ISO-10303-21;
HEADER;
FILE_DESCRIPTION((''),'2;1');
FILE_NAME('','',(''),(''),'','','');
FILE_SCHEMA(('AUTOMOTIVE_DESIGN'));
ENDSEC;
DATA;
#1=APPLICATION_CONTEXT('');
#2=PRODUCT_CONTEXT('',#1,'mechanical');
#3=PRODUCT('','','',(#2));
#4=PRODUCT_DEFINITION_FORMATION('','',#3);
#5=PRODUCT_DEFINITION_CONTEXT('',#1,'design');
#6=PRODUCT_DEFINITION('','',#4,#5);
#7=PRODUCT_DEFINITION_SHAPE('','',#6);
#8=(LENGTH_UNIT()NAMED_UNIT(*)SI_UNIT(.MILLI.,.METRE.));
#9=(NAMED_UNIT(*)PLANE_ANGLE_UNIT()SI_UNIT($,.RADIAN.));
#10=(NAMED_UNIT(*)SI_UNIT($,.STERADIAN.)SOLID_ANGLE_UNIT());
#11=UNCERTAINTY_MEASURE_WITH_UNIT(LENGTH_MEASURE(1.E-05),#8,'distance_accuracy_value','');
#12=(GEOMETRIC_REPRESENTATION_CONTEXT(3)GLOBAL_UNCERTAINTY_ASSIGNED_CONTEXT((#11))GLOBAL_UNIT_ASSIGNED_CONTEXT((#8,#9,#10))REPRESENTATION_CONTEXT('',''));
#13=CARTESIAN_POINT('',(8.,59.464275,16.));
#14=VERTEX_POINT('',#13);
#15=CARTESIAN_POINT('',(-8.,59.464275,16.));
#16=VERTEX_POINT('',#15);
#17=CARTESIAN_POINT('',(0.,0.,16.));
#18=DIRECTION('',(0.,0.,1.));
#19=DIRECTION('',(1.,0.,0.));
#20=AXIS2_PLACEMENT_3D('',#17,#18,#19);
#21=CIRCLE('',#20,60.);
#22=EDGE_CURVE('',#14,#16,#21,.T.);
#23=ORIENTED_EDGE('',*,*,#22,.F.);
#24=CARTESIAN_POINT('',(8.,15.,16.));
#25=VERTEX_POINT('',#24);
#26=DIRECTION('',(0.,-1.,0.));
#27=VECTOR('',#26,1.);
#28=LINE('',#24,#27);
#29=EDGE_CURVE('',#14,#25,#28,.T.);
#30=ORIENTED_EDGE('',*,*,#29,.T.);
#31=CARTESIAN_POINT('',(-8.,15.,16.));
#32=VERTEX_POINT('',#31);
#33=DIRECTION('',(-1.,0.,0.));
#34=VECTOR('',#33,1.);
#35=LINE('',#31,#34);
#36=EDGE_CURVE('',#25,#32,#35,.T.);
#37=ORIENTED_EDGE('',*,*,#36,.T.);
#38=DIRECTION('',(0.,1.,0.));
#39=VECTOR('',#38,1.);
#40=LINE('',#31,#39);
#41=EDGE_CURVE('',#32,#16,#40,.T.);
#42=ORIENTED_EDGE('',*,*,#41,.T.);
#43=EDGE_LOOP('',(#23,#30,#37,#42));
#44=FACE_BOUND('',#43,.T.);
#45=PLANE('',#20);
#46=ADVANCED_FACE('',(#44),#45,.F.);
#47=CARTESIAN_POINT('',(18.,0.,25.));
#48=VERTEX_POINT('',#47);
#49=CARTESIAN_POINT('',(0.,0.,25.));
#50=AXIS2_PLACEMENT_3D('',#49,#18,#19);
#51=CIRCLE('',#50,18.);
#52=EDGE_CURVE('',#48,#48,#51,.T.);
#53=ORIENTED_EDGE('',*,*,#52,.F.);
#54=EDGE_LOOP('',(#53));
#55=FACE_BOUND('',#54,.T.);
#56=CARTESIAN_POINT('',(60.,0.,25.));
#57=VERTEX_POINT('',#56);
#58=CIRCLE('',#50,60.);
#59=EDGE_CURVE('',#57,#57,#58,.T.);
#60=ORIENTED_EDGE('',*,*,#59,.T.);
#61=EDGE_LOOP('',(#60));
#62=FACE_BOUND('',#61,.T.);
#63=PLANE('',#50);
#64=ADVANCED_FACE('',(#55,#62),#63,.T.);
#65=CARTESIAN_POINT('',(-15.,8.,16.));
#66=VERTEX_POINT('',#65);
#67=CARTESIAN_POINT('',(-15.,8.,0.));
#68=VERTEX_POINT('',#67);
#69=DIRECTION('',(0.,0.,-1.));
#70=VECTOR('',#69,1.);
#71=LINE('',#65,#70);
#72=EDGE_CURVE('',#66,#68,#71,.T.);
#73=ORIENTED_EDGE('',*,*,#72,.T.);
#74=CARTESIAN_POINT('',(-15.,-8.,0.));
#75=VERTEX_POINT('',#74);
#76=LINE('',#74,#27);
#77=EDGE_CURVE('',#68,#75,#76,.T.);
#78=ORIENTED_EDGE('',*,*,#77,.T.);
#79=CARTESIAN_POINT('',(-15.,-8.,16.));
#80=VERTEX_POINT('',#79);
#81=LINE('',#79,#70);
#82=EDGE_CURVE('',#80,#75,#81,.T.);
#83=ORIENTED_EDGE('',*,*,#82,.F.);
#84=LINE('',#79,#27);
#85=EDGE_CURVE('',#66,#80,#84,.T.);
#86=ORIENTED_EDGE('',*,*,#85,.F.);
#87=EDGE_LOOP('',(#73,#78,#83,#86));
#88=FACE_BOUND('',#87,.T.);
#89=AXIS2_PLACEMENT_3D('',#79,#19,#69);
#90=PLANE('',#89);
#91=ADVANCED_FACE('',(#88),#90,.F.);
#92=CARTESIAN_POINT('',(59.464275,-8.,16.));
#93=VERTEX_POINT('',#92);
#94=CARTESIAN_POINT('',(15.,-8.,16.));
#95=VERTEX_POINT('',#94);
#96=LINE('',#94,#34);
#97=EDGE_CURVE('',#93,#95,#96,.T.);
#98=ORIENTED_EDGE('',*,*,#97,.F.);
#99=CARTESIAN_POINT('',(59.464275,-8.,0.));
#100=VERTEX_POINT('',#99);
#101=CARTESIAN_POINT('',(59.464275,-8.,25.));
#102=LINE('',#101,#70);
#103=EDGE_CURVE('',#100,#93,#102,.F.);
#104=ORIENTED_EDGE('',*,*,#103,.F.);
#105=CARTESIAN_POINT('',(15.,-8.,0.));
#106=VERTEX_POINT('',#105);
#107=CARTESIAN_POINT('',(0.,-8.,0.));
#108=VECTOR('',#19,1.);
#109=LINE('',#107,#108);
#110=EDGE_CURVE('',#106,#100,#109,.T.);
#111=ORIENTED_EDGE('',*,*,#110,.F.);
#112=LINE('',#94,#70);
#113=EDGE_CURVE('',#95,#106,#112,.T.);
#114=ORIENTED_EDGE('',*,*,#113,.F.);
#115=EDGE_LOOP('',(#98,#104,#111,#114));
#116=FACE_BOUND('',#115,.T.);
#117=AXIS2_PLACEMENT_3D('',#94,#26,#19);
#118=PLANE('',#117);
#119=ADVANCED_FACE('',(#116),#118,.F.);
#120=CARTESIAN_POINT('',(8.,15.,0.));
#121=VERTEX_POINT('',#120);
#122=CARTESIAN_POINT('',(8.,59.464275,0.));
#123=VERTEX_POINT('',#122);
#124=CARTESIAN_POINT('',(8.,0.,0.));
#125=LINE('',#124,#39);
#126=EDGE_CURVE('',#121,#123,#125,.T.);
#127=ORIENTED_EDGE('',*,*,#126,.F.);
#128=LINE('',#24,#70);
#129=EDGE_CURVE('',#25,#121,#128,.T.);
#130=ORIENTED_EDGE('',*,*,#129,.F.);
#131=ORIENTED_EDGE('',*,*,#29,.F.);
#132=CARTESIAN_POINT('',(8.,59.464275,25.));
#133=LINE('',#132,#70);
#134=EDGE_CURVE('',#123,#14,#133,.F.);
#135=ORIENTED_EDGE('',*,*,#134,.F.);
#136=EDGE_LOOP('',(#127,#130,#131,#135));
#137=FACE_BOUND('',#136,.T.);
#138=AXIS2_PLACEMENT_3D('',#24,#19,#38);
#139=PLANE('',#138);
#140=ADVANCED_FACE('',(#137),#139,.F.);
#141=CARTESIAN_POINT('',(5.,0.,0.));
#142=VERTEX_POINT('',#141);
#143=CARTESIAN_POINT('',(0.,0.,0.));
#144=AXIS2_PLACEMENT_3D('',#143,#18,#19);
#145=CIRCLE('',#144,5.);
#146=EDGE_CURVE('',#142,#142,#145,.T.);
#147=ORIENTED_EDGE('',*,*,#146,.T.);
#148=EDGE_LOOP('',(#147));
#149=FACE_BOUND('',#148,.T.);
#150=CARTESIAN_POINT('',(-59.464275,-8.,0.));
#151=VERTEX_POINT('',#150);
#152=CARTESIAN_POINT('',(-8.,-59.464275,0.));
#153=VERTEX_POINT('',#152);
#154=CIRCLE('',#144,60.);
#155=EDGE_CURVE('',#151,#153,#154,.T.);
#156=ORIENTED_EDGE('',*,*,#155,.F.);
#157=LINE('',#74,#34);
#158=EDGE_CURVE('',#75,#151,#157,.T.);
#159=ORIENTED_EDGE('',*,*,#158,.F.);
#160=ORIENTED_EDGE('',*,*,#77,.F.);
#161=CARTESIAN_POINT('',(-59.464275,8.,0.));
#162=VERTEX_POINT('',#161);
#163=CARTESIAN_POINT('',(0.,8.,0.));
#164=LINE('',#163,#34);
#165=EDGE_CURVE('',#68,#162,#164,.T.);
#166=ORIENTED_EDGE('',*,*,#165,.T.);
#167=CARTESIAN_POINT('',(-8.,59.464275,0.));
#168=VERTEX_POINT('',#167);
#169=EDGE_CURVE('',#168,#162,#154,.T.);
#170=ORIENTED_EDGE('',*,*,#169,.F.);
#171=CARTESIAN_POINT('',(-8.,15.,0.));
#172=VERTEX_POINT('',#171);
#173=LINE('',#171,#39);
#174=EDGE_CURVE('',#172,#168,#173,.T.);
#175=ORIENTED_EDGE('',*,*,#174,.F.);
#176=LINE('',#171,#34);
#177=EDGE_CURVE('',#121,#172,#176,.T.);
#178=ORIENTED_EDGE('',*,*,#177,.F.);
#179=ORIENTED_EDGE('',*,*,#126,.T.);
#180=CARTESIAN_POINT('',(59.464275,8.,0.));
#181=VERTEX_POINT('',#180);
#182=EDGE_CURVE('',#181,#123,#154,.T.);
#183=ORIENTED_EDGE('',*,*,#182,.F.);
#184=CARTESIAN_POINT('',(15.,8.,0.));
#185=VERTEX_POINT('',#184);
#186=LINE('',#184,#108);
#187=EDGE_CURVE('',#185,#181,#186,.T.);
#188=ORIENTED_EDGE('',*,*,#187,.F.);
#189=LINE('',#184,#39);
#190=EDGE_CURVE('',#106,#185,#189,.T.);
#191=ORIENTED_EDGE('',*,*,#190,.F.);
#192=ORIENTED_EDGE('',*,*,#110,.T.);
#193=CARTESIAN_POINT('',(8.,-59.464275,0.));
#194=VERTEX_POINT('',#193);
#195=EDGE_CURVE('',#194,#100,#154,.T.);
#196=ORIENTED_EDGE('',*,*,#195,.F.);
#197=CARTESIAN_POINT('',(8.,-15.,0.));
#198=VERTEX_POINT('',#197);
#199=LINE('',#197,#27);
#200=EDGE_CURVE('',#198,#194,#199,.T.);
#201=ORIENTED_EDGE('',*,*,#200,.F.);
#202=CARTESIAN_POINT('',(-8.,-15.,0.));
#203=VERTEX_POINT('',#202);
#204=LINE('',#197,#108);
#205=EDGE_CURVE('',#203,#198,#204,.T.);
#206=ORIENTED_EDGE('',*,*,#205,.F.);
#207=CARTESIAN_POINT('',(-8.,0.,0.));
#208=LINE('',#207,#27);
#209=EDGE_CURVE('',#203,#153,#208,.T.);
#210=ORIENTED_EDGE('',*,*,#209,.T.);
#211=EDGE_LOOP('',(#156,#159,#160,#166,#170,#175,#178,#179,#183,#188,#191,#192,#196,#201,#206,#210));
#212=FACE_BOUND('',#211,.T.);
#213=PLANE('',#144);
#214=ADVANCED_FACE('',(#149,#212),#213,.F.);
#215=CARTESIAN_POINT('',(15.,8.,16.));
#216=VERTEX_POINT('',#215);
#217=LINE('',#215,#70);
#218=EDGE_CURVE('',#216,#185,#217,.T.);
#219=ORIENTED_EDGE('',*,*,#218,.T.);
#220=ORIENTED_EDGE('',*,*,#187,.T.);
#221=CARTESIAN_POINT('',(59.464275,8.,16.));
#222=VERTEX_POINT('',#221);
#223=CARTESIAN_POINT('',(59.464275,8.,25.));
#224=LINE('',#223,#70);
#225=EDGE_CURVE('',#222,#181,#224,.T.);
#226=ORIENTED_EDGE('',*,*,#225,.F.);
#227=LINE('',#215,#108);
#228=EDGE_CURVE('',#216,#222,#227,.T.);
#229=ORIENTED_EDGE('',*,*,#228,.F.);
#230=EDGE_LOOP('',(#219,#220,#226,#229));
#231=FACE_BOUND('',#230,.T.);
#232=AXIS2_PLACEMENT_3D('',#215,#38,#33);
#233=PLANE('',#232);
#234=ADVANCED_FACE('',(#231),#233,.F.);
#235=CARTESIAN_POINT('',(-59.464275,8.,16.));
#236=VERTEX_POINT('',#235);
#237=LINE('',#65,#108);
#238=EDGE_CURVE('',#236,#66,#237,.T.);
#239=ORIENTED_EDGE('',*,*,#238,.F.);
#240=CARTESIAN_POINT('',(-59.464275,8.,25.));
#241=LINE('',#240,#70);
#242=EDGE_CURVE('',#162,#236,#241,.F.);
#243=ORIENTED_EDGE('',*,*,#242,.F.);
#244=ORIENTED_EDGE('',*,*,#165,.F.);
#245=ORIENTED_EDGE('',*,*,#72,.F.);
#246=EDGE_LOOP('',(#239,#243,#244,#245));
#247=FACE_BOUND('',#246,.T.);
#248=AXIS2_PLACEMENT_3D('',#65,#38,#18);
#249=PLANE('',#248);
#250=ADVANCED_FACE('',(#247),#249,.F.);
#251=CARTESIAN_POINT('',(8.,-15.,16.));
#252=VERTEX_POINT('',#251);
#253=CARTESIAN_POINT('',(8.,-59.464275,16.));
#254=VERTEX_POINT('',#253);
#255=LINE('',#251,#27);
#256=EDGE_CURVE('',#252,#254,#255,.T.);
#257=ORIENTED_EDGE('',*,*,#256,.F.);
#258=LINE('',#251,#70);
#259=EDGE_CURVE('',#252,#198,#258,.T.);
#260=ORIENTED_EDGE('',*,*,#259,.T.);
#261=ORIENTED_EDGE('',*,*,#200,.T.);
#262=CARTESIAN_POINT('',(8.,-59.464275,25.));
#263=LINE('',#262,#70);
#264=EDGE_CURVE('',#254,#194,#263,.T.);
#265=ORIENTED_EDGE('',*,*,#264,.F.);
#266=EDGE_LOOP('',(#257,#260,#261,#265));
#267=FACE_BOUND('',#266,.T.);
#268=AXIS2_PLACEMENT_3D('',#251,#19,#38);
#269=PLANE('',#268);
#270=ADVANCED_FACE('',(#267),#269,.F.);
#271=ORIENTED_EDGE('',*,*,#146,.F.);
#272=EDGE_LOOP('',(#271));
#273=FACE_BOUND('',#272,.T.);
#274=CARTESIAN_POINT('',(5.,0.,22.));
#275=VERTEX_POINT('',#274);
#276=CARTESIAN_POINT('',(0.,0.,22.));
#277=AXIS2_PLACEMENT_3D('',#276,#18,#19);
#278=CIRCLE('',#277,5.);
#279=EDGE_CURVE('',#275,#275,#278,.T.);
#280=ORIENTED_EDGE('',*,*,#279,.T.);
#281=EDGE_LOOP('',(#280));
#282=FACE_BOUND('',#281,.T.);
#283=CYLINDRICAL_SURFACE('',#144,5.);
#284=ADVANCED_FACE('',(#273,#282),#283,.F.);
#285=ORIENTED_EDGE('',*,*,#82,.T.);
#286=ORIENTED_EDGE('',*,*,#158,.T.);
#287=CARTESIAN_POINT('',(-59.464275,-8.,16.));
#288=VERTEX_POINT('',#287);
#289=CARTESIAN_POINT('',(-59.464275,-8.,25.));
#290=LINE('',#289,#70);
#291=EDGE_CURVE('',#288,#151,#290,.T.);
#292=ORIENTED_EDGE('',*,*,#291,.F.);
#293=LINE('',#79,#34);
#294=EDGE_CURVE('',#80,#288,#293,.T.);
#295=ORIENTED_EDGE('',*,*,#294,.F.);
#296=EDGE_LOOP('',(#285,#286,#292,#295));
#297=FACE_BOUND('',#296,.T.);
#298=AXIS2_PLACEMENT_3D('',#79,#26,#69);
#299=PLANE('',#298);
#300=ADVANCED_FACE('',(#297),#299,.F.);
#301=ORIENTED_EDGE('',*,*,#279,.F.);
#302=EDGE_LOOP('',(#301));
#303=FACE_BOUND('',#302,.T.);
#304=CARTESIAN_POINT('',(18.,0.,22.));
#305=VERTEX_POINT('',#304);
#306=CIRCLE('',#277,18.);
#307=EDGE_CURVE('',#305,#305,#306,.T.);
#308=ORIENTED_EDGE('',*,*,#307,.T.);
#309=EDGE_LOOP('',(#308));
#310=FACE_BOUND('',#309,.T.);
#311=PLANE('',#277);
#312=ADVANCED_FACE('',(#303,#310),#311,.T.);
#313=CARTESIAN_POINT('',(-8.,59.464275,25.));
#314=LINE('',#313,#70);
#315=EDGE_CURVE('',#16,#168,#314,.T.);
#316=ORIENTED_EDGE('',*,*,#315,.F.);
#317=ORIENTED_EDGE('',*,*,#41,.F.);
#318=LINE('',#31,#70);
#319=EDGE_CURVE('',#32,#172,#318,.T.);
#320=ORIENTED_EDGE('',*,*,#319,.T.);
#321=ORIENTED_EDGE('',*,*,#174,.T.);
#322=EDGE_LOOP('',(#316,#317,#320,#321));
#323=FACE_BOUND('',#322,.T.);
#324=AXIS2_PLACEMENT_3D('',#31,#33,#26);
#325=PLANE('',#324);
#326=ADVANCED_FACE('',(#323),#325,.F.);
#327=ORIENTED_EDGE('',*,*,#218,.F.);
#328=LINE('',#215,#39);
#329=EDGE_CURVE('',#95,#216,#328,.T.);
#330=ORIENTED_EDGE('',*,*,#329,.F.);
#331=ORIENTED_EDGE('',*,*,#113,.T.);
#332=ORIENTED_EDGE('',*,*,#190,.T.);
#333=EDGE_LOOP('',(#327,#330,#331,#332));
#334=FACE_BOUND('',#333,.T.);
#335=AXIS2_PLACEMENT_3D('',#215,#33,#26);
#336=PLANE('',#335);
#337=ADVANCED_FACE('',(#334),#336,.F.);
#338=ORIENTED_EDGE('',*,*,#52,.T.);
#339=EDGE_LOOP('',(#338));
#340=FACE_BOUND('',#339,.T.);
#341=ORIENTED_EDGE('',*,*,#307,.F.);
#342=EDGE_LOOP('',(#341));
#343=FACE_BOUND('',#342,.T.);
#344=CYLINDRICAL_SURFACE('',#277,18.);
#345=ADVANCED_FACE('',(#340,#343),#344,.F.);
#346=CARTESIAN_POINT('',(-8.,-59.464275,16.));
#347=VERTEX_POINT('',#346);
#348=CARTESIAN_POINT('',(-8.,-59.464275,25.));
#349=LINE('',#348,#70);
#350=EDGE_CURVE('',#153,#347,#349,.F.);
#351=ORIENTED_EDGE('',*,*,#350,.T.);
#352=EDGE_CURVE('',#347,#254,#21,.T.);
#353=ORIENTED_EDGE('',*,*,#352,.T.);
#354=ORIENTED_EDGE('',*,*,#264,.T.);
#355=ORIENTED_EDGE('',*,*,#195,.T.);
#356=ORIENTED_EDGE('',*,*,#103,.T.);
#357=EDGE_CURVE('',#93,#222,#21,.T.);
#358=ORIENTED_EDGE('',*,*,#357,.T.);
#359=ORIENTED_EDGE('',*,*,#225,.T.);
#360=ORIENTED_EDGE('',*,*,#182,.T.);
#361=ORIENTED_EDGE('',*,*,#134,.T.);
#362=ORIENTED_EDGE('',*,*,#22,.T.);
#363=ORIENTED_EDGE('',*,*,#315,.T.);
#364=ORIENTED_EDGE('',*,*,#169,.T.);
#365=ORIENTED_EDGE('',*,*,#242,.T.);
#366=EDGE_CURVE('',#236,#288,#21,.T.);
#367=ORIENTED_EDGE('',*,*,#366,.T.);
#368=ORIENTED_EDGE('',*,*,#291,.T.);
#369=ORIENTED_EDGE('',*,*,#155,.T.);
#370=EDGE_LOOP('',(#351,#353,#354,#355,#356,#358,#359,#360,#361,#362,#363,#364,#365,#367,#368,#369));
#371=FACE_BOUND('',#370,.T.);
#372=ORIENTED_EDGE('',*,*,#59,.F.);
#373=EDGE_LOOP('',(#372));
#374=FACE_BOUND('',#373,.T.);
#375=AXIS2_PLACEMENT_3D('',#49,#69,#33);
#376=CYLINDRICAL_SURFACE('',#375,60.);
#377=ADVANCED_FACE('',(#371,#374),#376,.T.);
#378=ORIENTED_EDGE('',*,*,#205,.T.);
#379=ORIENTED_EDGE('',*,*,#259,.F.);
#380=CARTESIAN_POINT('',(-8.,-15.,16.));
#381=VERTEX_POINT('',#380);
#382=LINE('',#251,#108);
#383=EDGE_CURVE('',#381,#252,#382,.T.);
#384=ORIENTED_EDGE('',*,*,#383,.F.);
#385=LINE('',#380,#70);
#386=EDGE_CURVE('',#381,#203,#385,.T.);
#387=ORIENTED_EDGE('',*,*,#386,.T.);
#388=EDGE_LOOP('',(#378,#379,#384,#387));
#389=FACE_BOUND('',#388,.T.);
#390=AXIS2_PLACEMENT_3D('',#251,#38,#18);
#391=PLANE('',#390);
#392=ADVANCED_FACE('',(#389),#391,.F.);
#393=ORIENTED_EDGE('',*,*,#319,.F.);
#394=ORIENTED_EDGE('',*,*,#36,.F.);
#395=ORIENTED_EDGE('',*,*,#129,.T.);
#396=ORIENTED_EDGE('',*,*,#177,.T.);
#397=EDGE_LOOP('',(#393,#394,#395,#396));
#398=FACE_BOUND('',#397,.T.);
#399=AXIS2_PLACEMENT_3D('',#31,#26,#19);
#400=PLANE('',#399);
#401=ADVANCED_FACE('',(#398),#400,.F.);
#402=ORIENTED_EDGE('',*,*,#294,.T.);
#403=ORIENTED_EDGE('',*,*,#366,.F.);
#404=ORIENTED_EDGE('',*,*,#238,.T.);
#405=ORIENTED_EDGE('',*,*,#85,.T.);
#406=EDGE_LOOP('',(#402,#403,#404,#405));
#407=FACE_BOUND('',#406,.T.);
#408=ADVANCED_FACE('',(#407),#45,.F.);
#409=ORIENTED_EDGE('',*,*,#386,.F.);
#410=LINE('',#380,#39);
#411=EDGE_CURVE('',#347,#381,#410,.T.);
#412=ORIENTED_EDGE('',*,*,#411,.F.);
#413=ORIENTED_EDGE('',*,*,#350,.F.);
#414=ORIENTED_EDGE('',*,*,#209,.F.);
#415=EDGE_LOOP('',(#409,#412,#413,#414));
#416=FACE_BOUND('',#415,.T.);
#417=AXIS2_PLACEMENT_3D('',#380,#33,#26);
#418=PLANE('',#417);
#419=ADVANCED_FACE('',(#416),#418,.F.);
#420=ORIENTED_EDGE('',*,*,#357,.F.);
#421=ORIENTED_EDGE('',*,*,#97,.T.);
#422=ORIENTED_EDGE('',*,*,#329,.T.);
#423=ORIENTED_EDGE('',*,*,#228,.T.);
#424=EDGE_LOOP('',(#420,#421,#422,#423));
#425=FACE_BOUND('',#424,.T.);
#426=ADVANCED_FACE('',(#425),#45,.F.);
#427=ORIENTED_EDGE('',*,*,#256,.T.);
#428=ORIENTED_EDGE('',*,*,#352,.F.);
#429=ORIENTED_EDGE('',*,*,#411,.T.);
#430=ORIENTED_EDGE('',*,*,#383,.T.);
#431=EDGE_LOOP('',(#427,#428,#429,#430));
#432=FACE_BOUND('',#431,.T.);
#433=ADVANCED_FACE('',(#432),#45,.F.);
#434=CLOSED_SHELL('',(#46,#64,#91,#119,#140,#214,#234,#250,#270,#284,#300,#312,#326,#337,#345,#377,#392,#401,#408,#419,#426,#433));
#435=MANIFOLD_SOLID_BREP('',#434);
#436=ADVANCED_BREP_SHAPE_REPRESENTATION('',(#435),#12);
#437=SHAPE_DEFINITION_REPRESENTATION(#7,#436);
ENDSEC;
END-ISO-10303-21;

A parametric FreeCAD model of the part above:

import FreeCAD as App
import Part
import Sketcher
Q = App.Units.Quantity


def add_polygon(sketch, points):
    """Adds a closed chain of lines whose ends are joined by coincident constraints."""
    first, n = sketch.GeometryCount, len(points)
    for a, b in zip(points, points[1:] + points[:1]):
        sketch.addGeometry(Part.LineSegment(App.Vector(*a, 0), App.Vector(*b, 0)), False)
    for i in range(n):
        sketch.addConstraint(Sketcher.Constraint("Coincident", first + i, 2, first + (i + 1) % n, 1))

doc = App.newDocument("Part")
body = doc.addObject("PartDesign::Body", "Body")

# Sketch on XY plane
sketch1 = doc.addObject("Sketcher::SketchObject", "Sketch")
body.addObject(sketch1)
sketch1.AttachmentSupport = (doc.XY_Plane, [""])
sketch1.MapMode = "FlatFace"
sketch1.addGeometry(Part.Circle(App.Vector(0, 0, 0), App.Vector(0, 0, 1), 60), False)
sketch1.addConstraint([
    Sketcher.Constraint("Coincident", 0, 3, -1, 1),
    Sketcher.Constraint("Diameter", 0, Q("120 mm")),
])
pad1 = doc.addObject("PartDesign::Pad", "Pad")
body.addObject(pad1)
pad1.Profile = sketch1
pad1.Length = 25

# Sketch on XY plane
sketch2 = doc.addObject("Sketcher::SketchObject", "Sketch001")
body.addObject(sketch2)
sketch2.AttachmentSupport = (doc.XY_Plane, [""])
sketch2.MapMode = "FlatFace"
sketch2.AttachmentOffset = App.Placement(App.Vector(0, 0, 25), App.Rotation())
sketch2.addGeometry(Part.Circle(App.Vector(0, 0, 0), App.Vector(0, 0, 1), 18), False)
sketch2.addConstraint([
    Sketcher.Constraint("Coincident", 0, 3, -1, 1),
    Sketcher.Constraint("Diameter", 0, Q("36 mm")),
])
pocket1 = doc.addObject("PartDesign::Pocket", "Pocket")
body.addObject(pocket1)
pocket1.Profile = sketch2
pocket1.Length = 3

# Sketch on XY plane
sketch3 = doc.addObject("Sketcher::SketchObject", "Sketch002")
body.addObject(sketch3)
sketch3.AttachmentSupport = (doc.XY_Plane, [""])
sketch3.MapMode = "FlatFace"
sketch3.AttachmentOffset = App.Placement(App.Vector(0, 0, 22), App.Rotation())
sketch3.addGeometry(Part.Circle(App.Vector(0, 0, 0), App.Vector(0, 0, 1), 5), False)
sketch3.addConstraint([
    Sketcher.Constraint("Coincident", 0, 3, -1, 1),
    Sketcher.Constraint("Diameter", 0, Q("10 mm")),
])
pocket2 = doc.addObject("PartDesign::Pocket", "Pocket001")
body.addObject(pocket2)
pocket2.Profile = sketch3
pocket2.Type = "ThroughAll"
pocket2.Midplane = True

# Sketch on XY plane
sketch4 = doc.addObject("Sketcher::SketchObject", "Sketch003")
body.addObject(sketch4)
sketch4.AttachmentSupport = (doc.XY_Plane, [""])
sketch4.MapMode = "FlatFace"
add_polygon(sketch4, [(-15, 8), (-15, -8), (-60, -8), (-60, 8)])  # lines 0-3
add_polygon(sketch4, [(8, -15), (8, -60), (-8, -60), (-8, -15)])  # lines 4-7
add_polygon(sketch4, [(60, 8), (60, -8), (15, -8), (15, 8)])  # lines 8-11
add_polygon(sketch4, [(8, 60), (8, 15), (-8, 15), (-8, 60)])  # lines 12-15
sketch4.addConstraint([
    Sketcher.Constraint("Vertical", 0),
    Sketcher.Constraint("Horizontal", 1),
    Sketcher.Constraint("Vertical", 2),
    Sketcher.Constraint("Horizontal", 3),
    Sketcher.Constraint("Vertical", 4),
    Sketcher.Constraint("Horizontal", 5),
    Sketcher.Constraint("Vertical", 6),
    Sketcher.Constraint("Horizontal", 7),
    Sketcher.Constraint("Vertical", 8),
    Sketcher.Constraint("Horizontal", 9),
    Sketcher.Constraint("Vertical", 10),
    Sketcher.Constraint("Horizontal", 11),
    Sketcher.Constraint("Vertical", 12),
    Sketcher.Constraint("Horizontal", 13),
    Sketcher.Constraint("Vertical", 14),
    Sketcher.Constraint("Horizontal", 15),
    Sketcher.Constraint("Symmetric", 2, 2, 8, 2, -1, 1),
    Sketcher.Constraint("Symmetric", 0, 2, 10, 2, -1, 1),
    Sketcher.Constraint("Symmetric", 6, 2, 12, 2, -1, 1),
    Sketcher.Constraint("Symmetric", 4, 2, 14, 2, -1, 1),
    Sketcher.Constraint("Horizontal", 1, 2, 8, 2),
    Sketcher.Constraint("Vertical", 7, 2, 12, 2),
    Sketcher.Constraint("Equal", 15, 0),
    Sketcher.Constraint("Equal", 11, 4),
    Sketcher.Constraint("DistanceX", 1, 2, 1, 1, Q("45 mm")),
    Sketcher.Constraint("DistanceX", 5, 2, 5, 1, Q("16 mm")),
    Sketcher.Constraint("DistanceX", 0, 2, -1, 1, Q("15 mm")),
    Sketcher.Constraint("DistanceY", 4, 2, -1, 1, Q("60 mm")),
])
pocket3 = doc.addObject("PartDesign::Pocket", "Pocket002")
body.addObject(pocket3)
pocket3.Profile = sketch4
pocket3.Length = 16
pocket3.Reversed = True

doc.recompute()
